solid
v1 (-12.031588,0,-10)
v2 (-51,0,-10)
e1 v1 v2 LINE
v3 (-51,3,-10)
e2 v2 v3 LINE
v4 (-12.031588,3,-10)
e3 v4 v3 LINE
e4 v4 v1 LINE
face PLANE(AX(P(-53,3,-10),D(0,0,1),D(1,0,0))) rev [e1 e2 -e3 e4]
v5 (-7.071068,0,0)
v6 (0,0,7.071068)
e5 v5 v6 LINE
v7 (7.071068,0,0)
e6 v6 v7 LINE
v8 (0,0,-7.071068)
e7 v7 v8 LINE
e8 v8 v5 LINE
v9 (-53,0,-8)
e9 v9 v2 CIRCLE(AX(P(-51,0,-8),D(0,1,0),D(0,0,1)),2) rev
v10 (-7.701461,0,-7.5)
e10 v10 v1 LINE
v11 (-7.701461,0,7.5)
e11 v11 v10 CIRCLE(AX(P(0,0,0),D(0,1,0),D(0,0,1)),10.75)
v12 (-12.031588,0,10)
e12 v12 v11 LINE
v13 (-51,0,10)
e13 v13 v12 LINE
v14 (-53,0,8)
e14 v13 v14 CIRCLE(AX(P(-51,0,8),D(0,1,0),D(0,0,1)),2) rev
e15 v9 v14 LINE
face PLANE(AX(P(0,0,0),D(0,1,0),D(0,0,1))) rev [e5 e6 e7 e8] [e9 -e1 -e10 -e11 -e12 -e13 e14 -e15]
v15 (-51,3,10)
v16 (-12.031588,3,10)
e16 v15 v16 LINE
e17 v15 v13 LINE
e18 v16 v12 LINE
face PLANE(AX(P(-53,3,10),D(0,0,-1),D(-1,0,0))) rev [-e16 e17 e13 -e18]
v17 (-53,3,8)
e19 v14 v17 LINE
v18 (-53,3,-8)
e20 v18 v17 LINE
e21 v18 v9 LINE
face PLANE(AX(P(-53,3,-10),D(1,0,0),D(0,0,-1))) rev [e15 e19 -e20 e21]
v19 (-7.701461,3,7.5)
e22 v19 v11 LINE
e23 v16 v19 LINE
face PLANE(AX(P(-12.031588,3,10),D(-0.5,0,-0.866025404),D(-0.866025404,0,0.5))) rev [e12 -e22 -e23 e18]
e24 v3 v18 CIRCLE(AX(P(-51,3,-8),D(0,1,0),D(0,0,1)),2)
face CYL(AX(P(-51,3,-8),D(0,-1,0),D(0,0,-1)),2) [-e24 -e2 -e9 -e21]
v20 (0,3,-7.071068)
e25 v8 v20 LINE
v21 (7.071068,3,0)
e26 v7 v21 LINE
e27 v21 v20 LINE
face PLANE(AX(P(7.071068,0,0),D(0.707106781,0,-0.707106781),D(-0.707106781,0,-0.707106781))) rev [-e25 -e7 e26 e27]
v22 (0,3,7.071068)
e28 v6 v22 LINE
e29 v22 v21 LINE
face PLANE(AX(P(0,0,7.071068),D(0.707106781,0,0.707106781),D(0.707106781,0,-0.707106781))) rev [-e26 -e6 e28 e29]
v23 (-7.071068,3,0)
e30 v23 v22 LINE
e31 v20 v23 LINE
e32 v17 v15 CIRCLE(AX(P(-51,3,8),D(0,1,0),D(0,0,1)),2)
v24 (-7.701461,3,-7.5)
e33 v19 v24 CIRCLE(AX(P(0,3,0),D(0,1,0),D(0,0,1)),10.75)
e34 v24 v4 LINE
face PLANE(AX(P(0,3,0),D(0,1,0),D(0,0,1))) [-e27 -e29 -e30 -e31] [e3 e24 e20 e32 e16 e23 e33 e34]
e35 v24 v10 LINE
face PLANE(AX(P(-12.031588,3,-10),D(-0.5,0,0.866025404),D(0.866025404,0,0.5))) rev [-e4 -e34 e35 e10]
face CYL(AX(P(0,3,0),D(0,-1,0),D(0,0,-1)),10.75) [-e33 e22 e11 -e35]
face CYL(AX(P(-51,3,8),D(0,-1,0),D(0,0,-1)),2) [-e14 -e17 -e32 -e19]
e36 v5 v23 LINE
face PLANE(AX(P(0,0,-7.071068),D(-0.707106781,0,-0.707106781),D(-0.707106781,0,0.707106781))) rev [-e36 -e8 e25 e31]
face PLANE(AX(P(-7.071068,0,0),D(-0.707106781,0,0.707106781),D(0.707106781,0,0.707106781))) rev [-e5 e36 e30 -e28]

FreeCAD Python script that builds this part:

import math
import FreeCAD as App
import Part
import Sketcher
from FreeCAD import Vector
Q = App.Units.Quantity


def edges_at(feature, points):
    """Names of the edges that pass closest to the given points."""
    edges = feature.Shape.Edges
    near = lambda p: min(range(len(edges)), key=lambda i: edges[i].distToShape(Part.Vertex(*p))[0])
    return sorted({f"Edge{near(p) + 1}" for p in points})


def add_polygon(sketch, points):
    """Adds a closed chain of lines whose ends are joined by coincident constraints."""
    first, n = sketch.GeometryCount, len(points)
    for a, b in zip(points, points[1:] + points[:1]):
        sketch.addGeometry(Part.LineSegment(App.Vector(*a, 0), App.Vector(*b, 0)), False)
    for i in range(n):
        sketch.addConstraint(Sketcher.Constraint("Coincident", first + i, 2, first + (i + 1) % n, 1))

doc = App.newDocument("Part")
body = doc.addObject("PartDesign::Body", "Body")

sketch1 = body.newObject("Sketcher::SketchObject", "Sketch")
sketch1.AttachmentSupport = (doc.getObject("XZ_Plane"), [""])
sketch1.MapMode = "FlatFace"
sketch1.addGeometry([
    Part.LineSegment(Vector(-12, 10, 0), Vector(-8, 8, 0)),
    Part.ArcOfCircle(Part.Circle(Vector(0, 0, 0), Vector(0, 0, 1), 11), math.radians(-136), math.radians(136)),
    Part.LineSegment(Vector(-8, -8, 0), Vector(-12, -10, 0)),
    Part.LineSegment(Vector(-12, -10, 0), Vector(-53, -10, 0)),
    Part.LineSegment(Vector(-53, -10, 0), Vector(-53, 10, 0)),
    Part.LineSegment(Vector(-53, 10, 0), Vector(-12, 10, 0)),
], False)
sketch1.addConstraint([
    Sketcher.Constraint("Coincident", 0, 2, 1, 2),
    Sketcher.Constraint("Coincident", 1, 1, 2, 1),
    Sketcher.Constraint("Coincident", 2, 2, 3, 1),
    Sketcher.Constraint("Coincident", 3, 2, 4, 1),
    Sketcher.Constraint("Coincident", 4, 2, 5, 1),
    Sketcher.Constraint("Coincident", 5, 2, 0, 1),
    Sketcher.Constraint("Horizontal", 3),
    Sketcher.Constraint("Vertical", 4),
    Sketcher.Constraint("Horizontal", 5),
    Sketcher.Constraint("Coincident", 1, 3, -1, 1),
    Sketcher.Constraint("Symmetric", 2, 2, 5, 2, -1),
    Sketcher.Constraint("Vertical", 0, 2, 1, 1),
    Sketcher.Constraint("DistanceY", 4, 1, 4, 2, Q("20 mm")),
    Sketcher.Constraint("Angle", 0, Q("-30 deg")),
    Sketcher.Constraint("Radius", 1, Q("10.75 mm")),
    Sketcher.Constraint("Distance", 0, Q("5 mm")),
    Sketcher.Constraint("DistanceX", 3, 2, -1, 1, Q("53 mm")),
])
pad1 = body.newObject("PartDesign::Pad", "Pad")
pad1.Profile = sketch1
pad1.Length = 3
pad1.Reversed = True
doc.recompute()

fillet = body.newObject("PartDesign::Fillet", "Fillet")
fillet.Base = (pad1, edges_at(pad1, [(-53, 1.5, -10), (-53, 1.5, 10)]))
fillet.Radius = 2

sketch2 = body.newObject("Sketcher::SketchObject", "Sketch001")
sketch2.AttachmentSupport = (doc.getObject("XZ_Plane"), [""])
sketch2.MapMode = "FlatFace"
sketch2.AttachmentOffset = App.Placement(Vector(0, 0, -3), App.Rotation())
add_polygon(sketch2, [(0, -7), (-7, 0), (0, 7), (7, 0)])
sketch2.addConstraint([
    Sketcher.Constraint("Symmetric", 0, 2, 2, 2, -1, 1),
    Sketcher.Constraint("Symmetric", 1, 2, 3, 2, -1, 1),
    Sketcher.Constraint("PointOnObject", 0, 2, -1),
    Sketcher.Constraint("PointOnObject", 1, 2, -2),
    Sketcher.Constraint("Perpendicular", 0, 1),
    Sketcher.Constraint("Distance", 0, Q("10 mm")),
])
pocket1 = body.newObject("PartDesign::Pocket", "Pocket")
pocket1.Profile = sketch2
pocket1.Type = "ThroughAll"
pocket1.Reversed = True

doc.recompute()
